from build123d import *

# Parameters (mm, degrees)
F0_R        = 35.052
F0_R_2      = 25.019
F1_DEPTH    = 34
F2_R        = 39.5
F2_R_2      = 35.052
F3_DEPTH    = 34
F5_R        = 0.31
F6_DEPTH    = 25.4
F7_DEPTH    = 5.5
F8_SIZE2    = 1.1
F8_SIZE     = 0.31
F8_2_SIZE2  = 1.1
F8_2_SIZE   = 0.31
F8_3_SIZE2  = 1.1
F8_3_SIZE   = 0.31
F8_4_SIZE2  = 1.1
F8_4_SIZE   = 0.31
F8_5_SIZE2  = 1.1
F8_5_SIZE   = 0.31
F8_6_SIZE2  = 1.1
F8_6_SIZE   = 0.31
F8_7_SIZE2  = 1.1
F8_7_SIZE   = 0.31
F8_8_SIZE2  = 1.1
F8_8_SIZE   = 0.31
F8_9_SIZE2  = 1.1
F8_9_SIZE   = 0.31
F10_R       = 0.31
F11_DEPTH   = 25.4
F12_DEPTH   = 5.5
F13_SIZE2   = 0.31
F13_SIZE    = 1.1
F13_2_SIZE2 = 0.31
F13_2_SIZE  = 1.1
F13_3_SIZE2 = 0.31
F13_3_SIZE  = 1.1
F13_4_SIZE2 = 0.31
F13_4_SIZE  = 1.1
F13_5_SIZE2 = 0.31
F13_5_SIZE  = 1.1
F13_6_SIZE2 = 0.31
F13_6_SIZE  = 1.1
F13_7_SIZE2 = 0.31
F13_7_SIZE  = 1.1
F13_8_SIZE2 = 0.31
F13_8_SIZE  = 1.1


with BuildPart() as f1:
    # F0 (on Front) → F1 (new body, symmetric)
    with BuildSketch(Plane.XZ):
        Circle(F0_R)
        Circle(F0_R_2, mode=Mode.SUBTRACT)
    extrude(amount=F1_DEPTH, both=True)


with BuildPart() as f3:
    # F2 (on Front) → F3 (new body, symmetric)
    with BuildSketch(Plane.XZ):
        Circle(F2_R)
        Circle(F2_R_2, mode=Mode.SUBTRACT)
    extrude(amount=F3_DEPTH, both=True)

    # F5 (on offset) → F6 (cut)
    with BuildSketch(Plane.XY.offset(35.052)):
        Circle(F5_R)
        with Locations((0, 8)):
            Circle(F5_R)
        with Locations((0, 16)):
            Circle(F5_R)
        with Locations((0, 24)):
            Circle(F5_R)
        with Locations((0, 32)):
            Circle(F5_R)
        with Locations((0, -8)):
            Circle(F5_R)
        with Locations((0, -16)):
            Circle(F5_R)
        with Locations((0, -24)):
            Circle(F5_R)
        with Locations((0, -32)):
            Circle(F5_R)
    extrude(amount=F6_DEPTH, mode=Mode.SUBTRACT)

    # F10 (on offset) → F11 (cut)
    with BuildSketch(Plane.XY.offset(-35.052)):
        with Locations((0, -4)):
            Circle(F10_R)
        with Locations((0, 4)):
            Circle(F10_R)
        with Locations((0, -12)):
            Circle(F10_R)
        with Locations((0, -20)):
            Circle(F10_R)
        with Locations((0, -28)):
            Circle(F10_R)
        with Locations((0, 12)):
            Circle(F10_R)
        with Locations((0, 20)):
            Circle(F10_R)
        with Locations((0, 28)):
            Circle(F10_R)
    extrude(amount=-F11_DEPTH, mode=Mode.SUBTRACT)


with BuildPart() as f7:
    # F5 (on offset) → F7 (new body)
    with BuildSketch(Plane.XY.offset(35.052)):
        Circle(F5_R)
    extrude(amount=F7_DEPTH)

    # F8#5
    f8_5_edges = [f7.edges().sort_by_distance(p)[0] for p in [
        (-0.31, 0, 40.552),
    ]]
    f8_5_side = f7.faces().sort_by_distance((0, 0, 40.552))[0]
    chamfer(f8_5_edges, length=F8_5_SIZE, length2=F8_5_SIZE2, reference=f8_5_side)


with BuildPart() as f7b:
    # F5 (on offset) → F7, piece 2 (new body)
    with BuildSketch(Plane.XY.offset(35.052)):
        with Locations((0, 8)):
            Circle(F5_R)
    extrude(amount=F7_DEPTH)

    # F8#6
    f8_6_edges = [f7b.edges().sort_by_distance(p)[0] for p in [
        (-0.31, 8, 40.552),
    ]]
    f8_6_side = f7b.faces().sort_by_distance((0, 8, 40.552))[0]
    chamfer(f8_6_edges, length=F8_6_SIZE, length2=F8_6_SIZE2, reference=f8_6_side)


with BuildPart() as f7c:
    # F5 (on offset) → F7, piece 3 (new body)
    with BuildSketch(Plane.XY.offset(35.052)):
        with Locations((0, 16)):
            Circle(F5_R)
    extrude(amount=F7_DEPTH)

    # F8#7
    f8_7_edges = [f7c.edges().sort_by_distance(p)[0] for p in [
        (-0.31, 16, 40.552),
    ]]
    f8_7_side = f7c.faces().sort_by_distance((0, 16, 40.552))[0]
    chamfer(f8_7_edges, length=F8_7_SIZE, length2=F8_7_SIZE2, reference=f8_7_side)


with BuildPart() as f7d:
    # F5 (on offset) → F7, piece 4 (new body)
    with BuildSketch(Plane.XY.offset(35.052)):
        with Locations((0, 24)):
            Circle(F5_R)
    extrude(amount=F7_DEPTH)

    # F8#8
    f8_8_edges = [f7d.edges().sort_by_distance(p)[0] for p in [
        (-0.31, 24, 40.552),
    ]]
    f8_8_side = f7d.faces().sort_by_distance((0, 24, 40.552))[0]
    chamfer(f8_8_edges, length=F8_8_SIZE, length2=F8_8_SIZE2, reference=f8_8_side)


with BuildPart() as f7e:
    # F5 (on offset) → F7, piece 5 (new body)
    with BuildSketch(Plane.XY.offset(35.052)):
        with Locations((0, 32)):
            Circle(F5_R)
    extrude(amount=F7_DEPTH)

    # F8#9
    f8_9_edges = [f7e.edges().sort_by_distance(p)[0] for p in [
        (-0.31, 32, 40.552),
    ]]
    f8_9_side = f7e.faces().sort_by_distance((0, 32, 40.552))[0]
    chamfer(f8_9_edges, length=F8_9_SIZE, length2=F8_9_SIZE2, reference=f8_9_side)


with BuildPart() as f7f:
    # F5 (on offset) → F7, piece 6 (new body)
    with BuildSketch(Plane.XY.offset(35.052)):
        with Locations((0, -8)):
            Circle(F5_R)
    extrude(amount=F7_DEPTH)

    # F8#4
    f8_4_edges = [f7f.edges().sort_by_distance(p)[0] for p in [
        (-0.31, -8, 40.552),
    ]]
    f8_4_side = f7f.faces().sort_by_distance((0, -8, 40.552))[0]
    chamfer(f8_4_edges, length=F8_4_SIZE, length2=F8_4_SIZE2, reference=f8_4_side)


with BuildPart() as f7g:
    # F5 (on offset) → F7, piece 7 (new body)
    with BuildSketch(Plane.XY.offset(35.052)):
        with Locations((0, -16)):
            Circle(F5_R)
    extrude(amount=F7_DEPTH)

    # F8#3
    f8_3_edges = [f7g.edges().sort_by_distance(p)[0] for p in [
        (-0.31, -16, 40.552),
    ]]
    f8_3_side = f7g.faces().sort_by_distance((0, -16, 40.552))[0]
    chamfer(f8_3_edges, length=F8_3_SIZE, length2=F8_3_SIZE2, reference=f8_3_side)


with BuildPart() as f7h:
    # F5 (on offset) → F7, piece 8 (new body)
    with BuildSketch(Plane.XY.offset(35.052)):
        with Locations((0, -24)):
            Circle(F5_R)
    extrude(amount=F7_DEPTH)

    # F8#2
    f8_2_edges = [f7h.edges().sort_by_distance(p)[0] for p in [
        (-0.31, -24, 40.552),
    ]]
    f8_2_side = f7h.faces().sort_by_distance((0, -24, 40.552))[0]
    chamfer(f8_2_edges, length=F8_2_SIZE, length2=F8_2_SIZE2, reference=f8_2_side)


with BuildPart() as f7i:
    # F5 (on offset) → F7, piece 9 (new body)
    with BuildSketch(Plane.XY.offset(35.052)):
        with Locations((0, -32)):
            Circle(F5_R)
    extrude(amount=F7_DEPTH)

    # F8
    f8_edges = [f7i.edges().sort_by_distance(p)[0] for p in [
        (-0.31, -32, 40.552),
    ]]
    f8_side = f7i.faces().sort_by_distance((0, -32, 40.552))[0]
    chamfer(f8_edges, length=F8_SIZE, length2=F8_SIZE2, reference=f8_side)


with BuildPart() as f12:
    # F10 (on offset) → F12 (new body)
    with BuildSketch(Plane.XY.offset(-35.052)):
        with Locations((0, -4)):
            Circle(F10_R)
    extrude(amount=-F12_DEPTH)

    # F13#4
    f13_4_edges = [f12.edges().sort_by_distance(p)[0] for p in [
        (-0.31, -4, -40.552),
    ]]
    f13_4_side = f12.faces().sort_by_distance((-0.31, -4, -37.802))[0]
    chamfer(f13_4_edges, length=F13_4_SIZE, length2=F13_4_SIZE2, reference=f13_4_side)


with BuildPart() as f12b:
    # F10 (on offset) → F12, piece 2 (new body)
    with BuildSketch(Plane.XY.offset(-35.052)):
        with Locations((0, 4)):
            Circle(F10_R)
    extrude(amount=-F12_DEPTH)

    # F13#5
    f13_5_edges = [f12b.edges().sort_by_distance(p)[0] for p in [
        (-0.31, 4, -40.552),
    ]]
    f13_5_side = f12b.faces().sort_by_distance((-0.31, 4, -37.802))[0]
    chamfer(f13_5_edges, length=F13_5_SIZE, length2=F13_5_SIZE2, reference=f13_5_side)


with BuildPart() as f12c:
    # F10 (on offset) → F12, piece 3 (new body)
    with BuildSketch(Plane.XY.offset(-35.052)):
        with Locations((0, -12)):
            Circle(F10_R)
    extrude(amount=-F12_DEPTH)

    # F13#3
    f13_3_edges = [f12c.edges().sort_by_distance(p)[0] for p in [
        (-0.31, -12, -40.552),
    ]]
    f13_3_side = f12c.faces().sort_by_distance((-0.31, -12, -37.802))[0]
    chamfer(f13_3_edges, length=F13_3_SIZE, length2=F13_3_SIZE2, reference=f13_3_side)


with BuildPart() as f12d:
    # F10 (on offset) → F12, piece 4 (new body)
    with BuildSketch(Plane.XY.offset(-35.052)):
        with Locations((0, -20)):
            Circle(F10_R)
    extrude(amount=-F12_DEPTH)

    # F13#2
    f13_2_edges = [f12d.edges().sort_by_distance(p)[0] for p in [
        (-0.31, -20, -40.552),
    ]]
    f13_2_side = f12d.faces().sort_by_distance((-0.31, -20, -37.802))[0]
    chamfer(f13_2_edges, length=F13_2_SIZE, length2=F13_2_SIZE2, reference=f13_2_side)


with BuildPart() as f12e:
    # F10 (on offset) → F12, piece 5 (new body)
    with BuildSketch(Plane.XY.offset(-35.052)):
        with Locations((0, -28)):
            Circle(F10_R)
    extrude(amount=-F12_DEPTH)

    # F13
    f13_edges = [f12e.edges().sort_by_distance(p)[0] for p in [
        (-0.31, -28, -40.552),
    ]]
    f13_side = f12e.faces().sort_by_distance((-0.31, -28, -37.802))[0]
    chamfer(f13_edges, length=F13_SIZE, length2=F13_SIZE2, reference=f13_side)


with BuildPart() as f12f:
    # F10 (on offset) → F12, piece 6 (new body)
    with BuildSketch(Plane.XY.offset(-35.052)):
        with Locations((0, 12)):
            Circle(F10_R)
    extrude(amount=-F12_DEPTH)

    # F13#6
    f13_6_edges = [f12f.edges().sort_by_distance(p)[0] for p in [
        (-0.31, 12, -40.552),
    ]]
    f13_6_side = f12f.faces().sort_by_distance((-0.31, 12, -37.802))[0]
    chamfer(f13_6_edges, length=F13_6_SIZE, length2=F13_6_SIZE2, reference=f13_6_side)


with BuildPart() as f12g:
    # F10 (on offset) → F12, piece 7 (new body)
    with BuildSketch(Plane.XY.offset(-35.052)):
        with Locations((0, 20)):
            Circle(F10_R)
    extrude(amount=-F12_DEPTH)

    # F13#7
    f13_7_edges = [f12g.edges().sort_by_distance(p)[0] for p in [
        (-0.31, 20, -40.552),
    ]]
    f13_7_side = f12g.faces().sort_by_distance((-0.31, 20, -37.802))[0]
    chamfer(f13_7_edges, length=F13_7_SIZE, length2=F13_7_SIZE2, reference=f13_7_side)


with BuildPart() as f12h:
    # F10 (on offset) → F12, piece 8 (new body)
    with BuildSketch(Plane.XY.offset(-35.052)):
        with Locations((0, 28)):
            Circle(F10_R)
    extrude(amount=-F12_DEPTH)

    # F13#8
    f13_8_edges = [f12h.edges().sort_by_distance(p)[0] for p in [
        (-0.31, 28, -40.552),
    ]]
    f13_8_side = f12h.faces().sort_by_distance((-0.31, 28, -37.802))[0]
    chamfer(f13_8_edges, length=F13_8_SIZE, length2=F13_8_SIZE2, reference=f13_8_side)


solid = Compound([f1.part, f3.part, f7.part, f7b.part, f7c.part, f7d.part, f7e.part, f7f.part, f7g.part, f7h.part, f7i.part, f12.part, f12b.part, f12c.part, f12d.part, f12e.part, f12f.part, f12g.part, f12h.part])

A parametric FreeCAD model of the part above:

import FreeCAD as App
import Part
import Sketcher


def edges_at(feature, points):
    """Names of the edges that pass closest to the given points."""
    edges = feature.Shape.Edges
    near = lambda p: min(range(len(edges)), key=lambda i: edges[i].distToShape(Part.Vertex(*p))[0])
    return sorted({f"Edge{near(p) + 1}" for p in points})

doc = App.newDocument("Part")
body = doc.addObject("PartDesign::Body", "Body")

sketch1 = body.newObject("Sketcher::SketchObject", "Sketch")
sketch1.AttachmentSupport = (doc.getObject("XZ_Plane"), [""])
sketch1.MapMode = "FlatFace"
sketch1.addGeometry(Part.Circle(App.Vector(0, 0, 0), App.Vector(0, 0, 1), 35), False)
sketch1.addGeometry(Part.Circle(App.Vector(0, 0, 0), App.Vector(0, 0, 1), 25), False)
sketch1.addConstraint(Sketcher.Constraint("Coincident", 0, 3, -1, 1))
sketch1.addConstraint(Sketcher.Constraint("Coincident", 1, 3, -1, 1))
sketch1.addConstraint(Sketcher.Constraint("Diameter", 0, 70.104))
sketch1.addConstraint(Sketcher.Constraint("Diameter", 1, 50.038))
pad1 = body.newObject("PartDesign::Pad", "Pad")
pad1.Profile = sketch1
pad1.Length = 68
pad1.Midplane = True
body2 = doc.addObject("PartDesign::Body", "Body001")

sketch2 = body2.newObject("Sketcher::SketchObject", "Sketch001")
sketch2.AttachmentSupport = (doc.getObject("XZ_Plane001"), [""])
sketch2.MapMode = "FlatFace"
sketch2.addGeometry(Part.Circle(App.Vector(0, 0, 0), App.Vector(0, 0, 1), 40), False)
sketch2.addGeometry(Part.Circle(App.Vector(0, 0, 0), App.Vector(0, 0, 1), 35), False)
sketch2.addConstraint(Sketcher.Constraint("Coincident", 0, 3, -1, 1))
sketch2.addConstraint(Sketcher.Constraint("Coincident", 1, 3, -1, 1))
sketch2.addConstraint(Sketcher.Constraint("Diameter", 0, 79.0))
sketch2.addConstraint(Sketcher.Constraint("Diameter", 1, 70.104))
pad2 = body2.newObject("PartDesign::Pad", "Pad001")
pad2.Profile = sketch2
pad2.Length = 68
pad2.Midplane = True

sketch3 = body2.newObject("Sketcher::SketchObject", "Sketch002")
sketch3.AttachmentSupport = (doc.getObject("XY_Plane001"), [""])
sketch3.MapMode = "FlatFace"
sketch3.AttachmentOffset = App.Placement(App.Vector(0, 0, 35.052), App.Rotation())
sketch3.addGeometry(Part.Circle(App.Vector(0, 0, 0), App.Vector(0, 0, 1), 0.31), False)
sketch3.addGeometry(Part.Circle(App.Vector(0, 8, 0), App.Vector(0, 0, 1), 0.31), False)
sketch3.addGeometry(Part.Circle(App.Vector(0, 16, 0), App.Vector(0, 0, 1), 0.31), False)
sketch3.addGeometry(Part.Circle(App.Vector(0, 24, 0), App.Vector(0, 0, 1), 0.31), False)
sketch3.addGeometry(Part.Circle(App.Vector(0, 32, 0), App.Vector(0, 0, 1), 0.31), False)
sketch3.addGeometry(Part.Circle(App.Vector(0, -8, 0), App.Vector(0, 0, 1), 0.31), False)
sketch3.addGeometry(Part.Circle(App.Vector(0, -16, 0), App.Vector(0, 0, 1), 0.31), False)
sketch3.addGeometry(Part.Circle(App.Vector(0, -24, 0), App.Vector(0, 0, 1), 0.31), False)
sketch3.addGeometry(Part.Circle(App.Vector(0, -32, 0), App.Vector(0, 0, 1), 0.31), False)
sketch3.addConstraint(Sketcher.Constraint("Coincident", 0, 3, -1, 1))
sketch3.addConstraint(Sketcher.Constraint("Equal", 0, 1))
sketch3.addConstraint(Sketcher.Constraint("Equal", 1, 2))
sketch3.addConstraint(Sketcher.Constraint("Equal", 2, 3))
sketch3.addConstraint(Sketcher.Constraint("Equal", 3, 4))
sketch3.addConstraint(Sketcher.Constraint("Equal", 4, 5))
sketch3.addConstraint(Sketcher.Constraint("Equal", 5, 6))
sketch3.addConstraint(Sketcher.Constraint("Equal", 6, 7))
sketch3.addConstraint(Sketcher.Constraint("Equal", 7, 8))
sketch3.addConstraint(Sketcher.Constraint("Symmetric", 1, 3, 5, 3, -1, 1))
sketch3.addConstraint(Sketcher.Constraint("Symmetric", 2, 3, 6, 3, -1, 1))
sketch3.addConstraint(Sketcher.Constraint("Symmetric", 3, 3, 7, 3, -1, 1))
sketch3.addConstraint(Sketcher.Constraint("Symmetric", 4, 3, 8, 3, -1, 1))
sketch3.addConstraint(Sketcher.Constraint("PointOnObject", 1, 3, -2))
sketch3.addConstraint(Sketcher.Constraint("PointOnObject", 2, 3, -2))
sketch3.addConstraint(Sketcher.Constraint("PointOnObject", 3, 3, -2))
sketch3.addConstraint(Sketcher.Constraint("PointOnObject", 4, 3, -2))
sketch3.addConstraint(Sketcher.Constraint("Diameter", 0, 0.62))
sketch3.addConstraint(Sketcher.Constraint("DistanceY", -1, 1, 1, 3, 8.0))
sketch3.addConstraint(Sketcher.Constraint("DistanceY", -1, 1, 2, 3, 16.0))
sketch3.addConstraint(Sketcher.Constraint("DistanceY", -1, 1, 3, 3, 24.0))
sketch3.addConstraint(Sketcher.Constraint("DistanceY", -1, 1, 4, 3, 32.0))
pocket1 = body2.newObject("PartDesign::Pocket", "Pocket")
pocket1.Profile = sketch3
pocket1.Length = 25.4
pocket1.Reversed = True

sketch4 = body2.newObject("Sketcher::SketchObject", "Sketch003")
sketch4.AttachmentSupport = (doc.getObject("XY_Plane001"), [""])
sketch4.MapMode = "FlatFace"
sketch4.AttachmentOffset = App.Placement(App.Vector(0, 0, -35.052), App.Rotation())
sketch4.addGeometry(Part.Circle(App.Vector(0, -4, 0), App.Vector(0, 0, 1), 0.31), False)
sketch4.addGeometry(Part.Circle(App.Vector(0, 4, 0), App.Vector(0, 0, 1), 0.31), False)
sketch4.addGeometry(Part.Circle(App.Vector(0, -12, 0), App.Vector(0, 0, 1), 0.31), False)
sketch4.addGeometry(Part.Circle(App.Vector(0, -20, 0), App.Vector(0, 0, 1), 0.31), False)
sketch4.addGeometry(Part.Circle(App.Vector(0, -28, 0), App.Vector(0, 0, 1), 0.31), False)
sketch4.addGeometry(Part.Circle(App.Vector(0, 12, 0), App.Vector(0, 0, 1), 0.31), False)
sketch4.addGeometry(Part.Circle(App.Vector(0, 20, 0), App.Vector(0, 0, 1), 0.31), False)
sketch4.addGeometry(Part.Circle(App.Vector(0, 28, 0), App.Vector(0, 0, 1), 0.31), False)
sketch4.addConstraint(Sketcher.Constraint("Equal", 0, 1))
sketch4.addConstraint(Sketcher.Constraint("Equal", 1, 2))
sketch4.addConstraint(Sketcher.Constraint("Equal", 2, 3))
sketch4.addConstraint(Sketcher.Constraint("Equal", 3, 4))
sketch4.addConstraint(Sketcher.Constraint("Equal", 4, 5))
sketch4.addConstraint(Sketcher.Constraint("Equal", 5, 6))
sketch4.addConstraint(Sketcher.Constraint("Equal", 6, 7))
sketch4.addConstraint(Sketcher.Constraint("Symmetric", 0, 3, 1, 3, -1, 1))
sketch4.addConstraint(Sketcher.Constraint("Symmetric", 2, 3, 5, 3, -1, 1))
sketch4.addConstraint(Sketcher.Constraint("Symmetric", 3, 3, 6, 3, -1, 1))
sketch4.addConstraint(Sketcher.Constraint("Symmetric", 4, 3, 7, 3, -1, 1))
sketch4.addConstraint(Sketcher.Constraint("PointOnObject", 0, 3, -2))
sketch4.addConstraint(Sketcher.Constraint("PointOnObject", 2, 3, -2))
sketch4.addConstraint(Sketcher.Constraint("PointOnObject", 3, 3, -2))
sketch4.addConstraint(Sketcher.Constraint("PointOnObject", 4, 3, -2))
sketch4.addConstraint(Sketcher.Constraint("Diameter", 0, 0.62))
sketch4.addConstraint(Sketcher.Constraint("DistanceY", 0, 3, -1, 1, 4.0))
sketch4.addConstraint(Sketcher.Constraint("DistanceY", 2, 3, -1, 1, 12.0))
sketch4.addConstraint(Sketcher.Constraint("DistanceY", 3, 3, -1, 1, 20.0))
sketch4.addConstraint(Sketcher.Constraint("DistanceY", 4, 3, -1, 1, 28.0))
pocket2 = body2.newObject("PartDesign::Pocket", "Pocket001")
pocket2.Profile = sketch4
pocket2.Length = 25.4
body3 = doc.addObject("PartDesign::Body", "Body002")

sketch5 = body3.newObject("Sketcher::SketchObject", "Sketch004")
sketch5.AttachmentSupport = (doc.getObject("XY_Plane002"), [""])
sketch5.MapMode = "FlatFace"
sketch5.AttachmentOffset = App.Placement(App.Vector(0, 0, 35.052), App.Rotation())
sketch5.addGeometry(Part.Circle(App.Vector(0, 0, 0), App.Vector(0, 0, 1), 0.31), False)
sketch5.addConstraint(Sketcher.Constraint("Coincident", 0, 3, -1, 1))
sketch5.addConstraint(Sketcher.Constraint("Diameter", 0, 0.62))
pad3 = body3.newObject("PartDesign::Pad", "Pad002")
pad3.Profile = sketch5
pad3.Length = 5.5
doc.recompute()

chamfer = body3.newObject("PartDesign::Chamfer", "Chamfer")
chamfer.Base = (pad3, edges_at(pad3, [(-0.31, 0, 40.552)]))
chamfer.ChamferType = "Two distances"
chamfer.Size = 0.31
chamfer.Size2 = 1.1
chamfer.FlipDirection = True
body4 = doc.addObject("PartDesign::Body", "Body003")

sketch6 = body4.newObject("Sketcher::SketchObject", "Sketch005")
sketch6.AttachmentSupport = (doc.getObject("XY_Plane003"), [""])
sketch6.MapMode = "FlatFace"
sketch6.AttachmentOffset = App.Placement(App.Vector(0, 0, 35.052), App.Rotation())
sketch6.addGeometry(Part.Circle(App.Vector(0, 8, 0), App.Vector(0, 0, 1), 0.31), False)
sketch6.addConstraint(Sketcher.Constraint("PointOnObject", 0, 3, -2))
sketch6.addConstraint(Sketcher.Constraint("Diameter", 0, 0.62))
sketch6.addConstraint(Sketcher.Constraint("DistanceY", -1, 1, 0, 3, 8.0))
pad4 = body4.newObject("PartDesign::Pad", "Pad003")
pad4.Profile = sketch6
pad4.Length = 5.5
doc.recompute()

chamfer2 = body4.newObject("PartDesign::Chamfer", "Chamfer001")
chamfer2.Base = (pad4, edges_at(pad4, [(-0.31, 8, 40.552)]))
chamfer2.ChamferType = "Two distances"
chamfer2.Size = 0.31
chamfer2.Size2 = 1.1
chamfer2.FlipDirection = True
body5 = doc.addObject("PartDesign::Body", "Body004")

sketch7 = body5.newObject("Sketcher::SketchObject", "Sketch006")
sketch7.AttachmentSupport = (doc.getObject("XY_Plane004"), [""])
sketch7.MapMode = "FlatFace"
sketch7.AttachmentOffset = App.Placement(App.Vector(0, 0, 35.052), App.Rotation())
sketch7.addGeometry(Part.Circle(App.Vector(0, 16, 0), App.Vector(0, 0, 1), 0.31), False)
sketch7.addConstraint(Sketcher.Constraint("PointOnObject", 0, 3, -2))
sketch7.addConstraint(Sketcher.Constraint("Diameter", 0, 0.62))
sketch7.addConstraint(Sketcher.Constraint("DistanceY", -1, 1, 0, 3, 16.0))
pad5 = body5.newObject("PartDesign::Pad", "Pad004")
pad5.Profile = sketch7
pad5.Length = 5.5
doc.recompute()

chamfer3 = body5.newObject("PartDesign::Chamfer", "Chamfer002")
chamfer3.Base = (pad5, edges_at(pad5, [(-0.31, 16, 40.552)]))
chamfer3.ChamferType = "Two distances"
chamfer3.Size = 0.31
chamfer3.Size2 = 1.1
chamfer3.FlipDirection = True
body6 = doc.addObject("PartDesign::Body", "Body005")

sketch8 = body6.newObject("Sketcher::SketchObject", "Sketch007")
sketch8.AttachmentSupport = (doc.getObject("XY_Plane005"), [""])
sketch8.MapMode = "FlatFace"
sketch8.AttachmentOffset = App.Placement(App.Vector(0, 0, 35.052), App.Rotation())
sketch8.addGeometry(Part.Circle(App.Vector(0, 24, 0), App.Vector(0, 0, 1), 0.31), False)
sketch8.addConstraint(Sketcher.Constraint("PointOnObject", 0, 3, -2))
sketch8.addConstraint(Sketcher.Constraint("Diameter", 0, 0.62))
sketch8.addConstraint(Sketcher.Constraint("DistanceY", -1, 1, 0, 3, 24.0))
pad6 = body6.newObject("PartDesign::Pad", "Pad005")
pad6.Profile = sketch8
pad6.Length = 5.5
doc.recompute()

chamfer4 = body6.newObject("PartDesign::Chamfer", "Chamfer003")
chamfer4.Base = (pad6, edges_at(pad6, [(-0.31, 24, 40.552)]))
chamfer4.ChamferType = "Two distances"
chamfer4.Size = 0.31
chamfer4.Size2 = 1.1
chamfer4.FlipDirection = True
body7 = doc.addObject("PartDesign::Body", "Body006")

sketch9 = body7.newObject("Sketcher::SketchObject", "Sketch008")
sketch9.AttachmentSupport = (doc.getObject("XY_Plane006"), [""])
sketch9.MapMode = "FlatFace"
sketch9.AttachmentOffset = App.Placement(App.Vector(0, 0, 35.052), App.Rotation())
sketch9.addGeometry(Part.Circle(App.Vector(0, 32, 0), App.Vector(0, 0, 1), 0.31), False)
sketch9.addConstraint(Sketcher.Constraint("PointOnObject", 0, 3, -2))
sketch9.addConstraint(Sketcher.Constraint("Diameter", 0, 0.62))
sketch9.addConstraint(Sketcher.Constraint("DistanceY", -1, 1, 0, 3, 32.0))
pad7 = body7.newObject("PartDesign::Pad", "Pad006")
pad7.Profile = sketch9
pad7.Length = 5.5
doc.recompute()

chamfer5 = body7.newObject("PartDesign::Chamfer", "Chamfer004")
chamfer5.Base = (pad7, edges_at(pad7, [(-0.31, 32, 40.552)]))
chamfer5.ChamferType = "Two distances"
chamfer5.Size = 0.31
chamfer5.Size2 = 1.1
chamfer5.FlipDirection = True
body8 = doc.addObject("PartDesign::Body", "Body007")

sketch10 = body8.newObject("Sketcher::SketchObject", "Sketch009")
sketch10.AttachmentSupport = (doc.getObject("XY_Plane007"), [""])
sketch10.MapMode = "FlatFace"
sketch10.AttachmentOffset = App.Placement(App.Vector(0, 0, 35.052), App.Rotation())
sketch10.addGeometry(Part.Circle(App.Vector(0, -8, 0), App.Vector(0, 0, 1), 0.31), False)
sketch10.addConstraint(Sketcher.Constraint("PointOnObject", 0, 3, -2))
sketch10.addConstraint(Sketcher.Constraint("Diameter", 0, 0.62))
sketch10.addConstraint(Sketcher.Constraint("DistanceY", 0, 3, -1, 1, 8.0))
pad8 = body8.newObject("PartDesign::Pad", "Pad007")
pad8.Profile = sketch10
pad8.Length = 5.5
doc.recompute()

chamfer6 = body8.newObject("PartDesign::Chamfer", "Chamfer005")
chamfer6.Base = (pad8, edges_at(pad8, [(-0.31, -8, 40.552)]))
chamfer6.ChamferType = "Two distances"
chamfer6.Size = 0.31
chamfer6.Size2 = 1.1
chamfer6.FlipDirection = True
body9 = doc.addObject("PartDesign::Body", "Body008")

sketch11 = body9.newObject("Sketcher::SketchObject", "Sketch010")
sketch11.AttachmentSupport = (doc.getObject("XY_Plane008"), [""])
sketch11.MapMode = "FlatFace"
sketch11.AttachmentOffset = App.Placement(App.Vector(0, 0, 35.052), App.Rotation())
sketch11.addGeometry(Part.Circle(App.Vector(0, -16, 0), App.Vector(0, 0, 1), 0.31), False)
sketch11.addConstraint(Sketcher.Constraint("PointOnObject", 0, 3, -2))
sketch11.addConstraint(Sketcher.Constraint("Diameter", 0, 0.62))
sketch11.addConstraint(Sketcher.Constraint("DistanceY", 0, 3, -1, 1, 16.0))
pad9 = body9.newObject("PartDesign::Pad", "Pad008")
pad9.Profile = sketch11
pad9.Length = 5.5
doc.recompute()

chamfer7 = body9.newObject("PartDesign::Chamfer", "Chamfer006")
chamfer7.Base = (pad9, edges_at(pad9, [(-0.31, -16, 40.552)]))
chamfer7.ChamferType = "Two distances"
chamfer7.Size = 0.31
chamfer7.Size2 = 1.1
chamfer7.FlipDirection = True
body10 = doc.addObject("PartDesign::Body", "Body009")

sketch12 = body10.newObject("Sketcher::SketchObject", "Sketch011")
sketch12.AttachmentSupport = (doc.getObject("XY_Plane009"), [""])
sketch12.MapMode = "FlatFace"
sketch12.AttachmentOffset = App.Placement(App.Vector(0, 0, 35.052), App.Rotation())
sketch12.addGeometry(Part.Circle(App.Vector(0, -24, 0), App.Vector(0, 0, 1), 0.31), False)
sketch12.addConstraint(Sketcher.Constraint("PointOnObject", 0, 3, -2))
sketch12.addConstraint(Sketcher.Constraint("Diameter", 0, 0.62))
sketch12.addConstraint(Sketcher.Constraint("DistanceY", 0, 3, -1, 1, 24.0))
pad10 = body10.newObject("PartDesign::Pad", "Pad009")
pad10.Profile = sketch12
pad10.Length = 5.5
doc.recompute()

chamfer8 = body10.newObject("PartDesign::Chamfer", "Chamfer007")
chamfer8.Base = (pad10, edges_at(pad10, [(-0.31, -24, 40.552)]))
chamfer8.ChamferType = "Two distances"
chamfer8.Size = 0.31
chamfer8.Size2 = 1.1
chamfer8.FlipDirection = True
body11 = doc.addObject("PartDesign::Body", "Body010")

sketch13 = body11.newObject("Sketcher::SketchObject", "Sketch012")
sketch13.AttachmentSupport = (doc.getObject("XY_Plane010"), [""])
sketch13.MapMode = "FlatFace"
sketch13.AttachmentOffset = App.Placement(App.Vector(0, 0, 35.052), App.Rotation())
sketch13.addGeometry(Part.Circle(App.Vector(0, -32, 0), App.Vector(0, 0, 1), 0.31), False)
sketch13.addConstraint(Sketcher.Constraint("PointOnObject", 0, 3, -2))
sketch13.addConstraint(Sketcher.Constraint("Diameter", 0, 0.62))
sketch13.addConstraint(Sketcher.Constraint("DistanceY", 0, 3, -1, 1, 32.0))
pad11 = body11.newObject("PartDesign::Pad", "Pad010")
pad11.Profile = sketch13
pad11.Length = 5.5
doc.recompute()

chamfer9 = body11.newObject("PartDesign::Chamfer", "Chamfer008")
chamfer9.Base = (pad11, edges_at(pad11, [(-0.31, -32, 40.552)]))
chamfer9.ChamferType = "Two distances"
chamfer9.Size = 0.31
chamfer9.Size2 = 1.1
chamfer9.FlipDirection = True
body12 = doc.addObject("PartDesign::Body", "Body011")

sketch14 = body12.newObject("Sketcher::SketchObject", "Sketch013")
sketch14.AttachmentSupport = (doc.getObject("XY_Plane011"), [""])
sketch14.MapMode = "FlatFace"
sketch14.AttachmentOffset = App.Placement(App.Vector(0, 0, -35.052), App.Rotation())
sketch14.addGeometry(Part.Circle(App.Vector(0, -4, 0), App.Vector(0, 0, 1), 0.31), False)
sketch14.addConstraint(Sketcher.Constraint("PointOnObject", 0, 3, -2))
sketch14.addConstraint(Sketcher.Constraint("Diameter", 0, 0.62))
sketch14.addConstraint(Sketcher.Constraint("DistanceY", 0, 3, -1, 1, 4.0))
pad12 = body12.newObject("PartDesign::Pad", "Pad011")
pad12.Profile = sketch14
pad12.Length = 5.5
pad12.Reversed = True
doc.recompute()

chamfer10 = body12.newObject("PartDesign::Chamfer", "Chamfer009")
chamfer10.Base = (pad12, edges_at(pad12, [(-0.31, -4, -40.552)]))
chamfer10.ChamferType = "Two distances"
chamfer10.Size = 1.1
chamfer10.Size2 = 0.31
body13 = doc.addObject("PartDesign::Body", "Body012")

sketch15 = body13.newObject("Sketcher::SketchObject", "Sketch014")
sketch15.AttachmentSupport = (doc.getObject("XY_Plane012"), [""])
sketch15.MapMode = "FlatFace"
sketch15.AttachmentOffset = App.Placement(App.Vector(0, 0, -35.052), App.Rotation())
sketch15.addGeometry(Part.Circle(App.Vector(0, 4, 0), App.Vector(0, 0, 1), 0.31), False)
sketch15.addConstraint(Sketcher.Constraint("PointOnObject", 0, 3, -2))
sketch15.addConstraint(Sketcher.Constraint("Diameter", 0, 0.62))
sketch15.addConstraint(Sketcher.Constraint("DistanceY", -1, 1, 0, 3, 4.0))
pad13 = body13.newObject("PartDesign::Pad", "Pad012")
pad13.Profile = sketch15
pad13.Length = 5.5
pad13.Reversed = True
doc.recompute()

chamfer11 = body13.newObject("PartDesign::Chamfer", "Chamfer010")
chamfer11.Base = (pad13, edges_at(pad13, [(-0.31, 4, -40.552)]))
chamfer11.ChamferType = "Two distances"
chamfer11.Size = 1.1
chamfer11.Size2 = 0.31
body14 = doc.addObject("PartDesign::Body", "Body013")

sketch16 = body14.newObject("Sketcher::SketchObject", "Sketch015")
sketch16.AttachmentSupport = (doc.getObject("XY_Plane013"), [""])
sketch16.MapMode = "FlatFace"
sketch16.AttachmentOffset = App.Placement(App.Vector(0, 0, -35.052), App.Rotation())
sketch16.addGeometry(Part.Circle(App.Vector(0, -12, 0), App.Vector(0, 0, 1), 0.31), False)
sketch16.addConstraint(Sketcher.Constraint("PointOnObject", 0, 3, -2))
sketch16.addConstraint(Sketcher.Constraint("Diameter", 0, 0.62))
sketch16.addConstraint(Sketcher.Constraint("DistanceY", 0, 3, -1, 1, 12.0))
pad14 = body14.newObject("PartDesign::Pad", "Pad013")
pad14.Profile = sketch16
pad14.Length = 5.5
pad14.Reversed = True
doc.recompute()

chamfer12 = body14.newObject("PartDesign::Chamfer", "Chamfer011")
chamfer12.Base = (pad14, edges_at(pad14, [(-0.31, -12, -40.552)]))
chamfer12.ChamferType = "Two distances"
chamfer12.Size = 1.1
chamfer12.Size2 = 0.31
body15 = doc.addObject("PartDesign::Body", "Body014")

sketch17 = body15.newObject("Sketcher::SketchObject", "Sketch016")
sketch17.AttachmentSupport = (doc.getObject("XY_Plane014"), [""])
sketch17.MapMode = "FlatFace"
sketch17.AttachmentOffset = App.Placement(App.Vector(0, 0, -35.052), App.Rotation())
sketch17.addGeometry(Part.Circle(App.Vector(0, -20, 0), App.Vector(0, 0, 1), 0.31), False)
sketch17.addConstraint(Sketcher.Constraint("PointOnObject", 0, 3, -2))
sketch17.addConstraint(Sketcher.Constraint("Diameter", 0, 0.62))
sketch17.addConstraint(Sketcher.Constraint("DistanceY", 0, 3, -1, 1, 20.0))
pad15 = body15.newObject("PartDesign::Pad", "Pad014")
pad15.Profile = sketch17
pad15.Length = 5.5
pad15.Reversed = True
doc.recompute()

chamfer13 = body15.newObject("PartDesign::Chamfer", "Chamfer012")
chamfer13.Base = (pad15, edges_at(pad15, [(-0.31, -20, -40.552)]))
chamfer13.ChamferType = "Two distances"
chamfer13.Size = 1.1
chamfer13.Size2 = 0.31
body16 = doc.addObject("PartDesign::Body", "Body015")

sketch18 = body16.newObject("Sketcher::SketchObject", "Sketch017")
sketch18.AttachmentSupport = (doc.getObject("XY_Plane015"), [""])
sketch18.MapMode = "FlatFace"
sketch18.AttachmentOffset = App.Placement(App.Vector(0, 0, -35.052), App.Rotation())
sketch18.addGeometry(Part.Circle(App.Vector(0, -28, 0), App.Vector(0, 0, 1), 0.31), False)
sketch18.addConstraint(Sketcher.Constraint("PointOnObject", 0, 3, -2))
sketch18.addConstraint(Sketcher.Constraint("Diameter", 0, 0.62))
sketch18.addConstraint(Sketcher.Constraint("DistanceY", 0, 3, -1, 1, 28.0))
pad16 = body16.newObject("PartDesign::Pad", "Pad015")
pad16.Profile = sketch18
pad16.Length = 5.5
pad16.Reversed = True
doc.recompute()

chamfer14 = body16.newObject("PartDesign::Chamfer", "Chamfer013")
chamfer14.Base = (pad16, edges_at(pad16, [(-0.31, -28, -40.552)]))
chamfer14.ChamferType = "Two distances"
chamfer14.Size = 1.1
chamfer14.Size2 = 0.31
body17 = doc.addObject("PartDesign::Body", "Body016")

sketch19 = body17.newObject("Sketcher::SketchObject", "Sketch018")
sketch19.AttachmentSupport = (doc.getObject("XY_Plane016"), [""])
sketch19.MapMode = "FlatFace"
sketch19.AttachmentOffset = App.Placement(App.Vector(0, 0, -35.052), App.Rotation())
sketch19.addGeometry(Part.Circle(App.Vector(0, 12, 0), App.Vector(0, 0, 1), 0.31), False)
sketch19.addConstraint(Sketcher.Constraint("PointOnObject", 0, 3, -2))
sketch19.addConstraint(Sketcher.Constraint("Diameter", 0, 0.62))
sketch19.addConstraint(Sketcher.Constraint("DistanceY", -1, 1, 0, 3, 12.0))
pad17 = body17.newObject("PartDesign::Pad", "Pad016")
pad17.Profile = sketch19
pad17.Length = 5.5
pad17.Reversed = True
doc.recompute()

chamfer15 = body17.newObject("PartDesign::Chamfer", "Chamfer014")
chamfer15.Base = (pad17, edges_at(pad17, [(-0.31, 12, -40.552)]))
chamfer15.ChamferType = "Two distances"
chamfer15.Size = 1.1
chamfer15.Size2 = 0.31
body18 = doc.addObject("PartDesign::Body", "Body017")

sketch20 = body18.newObject("Sketcher::SketchObject", "Sketch019")
sketch20.AttachmentSupport = (doc.getObject("XY_Plane017"), [""])
sketch20.MapMode = "FlatFace"
sketch20.AttachmentOffset = App.Placement(App.Vector(0, 0, -35.052), App.Rotation())
sketch20.addGeometry(Part.Circle(App.Vector(0, 20, 0), App.Vector(0, 0, 1), 0.31), False)
sketch20.addConstraint(Sketcher.Constraint("PointOnObject", 0, 3, -2))
sketch20.addConstraint(Sketcher.Constraint("Diameter", 0, 0.62))
sketch20.addConstraint(Sketcher.Constraint("DistanceY", -1, 1, 0, 3, 20.0))
pad18 = body18.newObject("PartDesign::Pad", "Pad017")
pad18.Profile = sketch20
pad18.Length = 5.5
pad18.Reversed = True
doc.recompute()

chamfer16 = body18.newObject("PartDesign::Chamfer", "Chamfer015")
chamfer16.Base = (pad18, edges_at(pad18, [(-0.31, 20, -40.552)]))
chamfer16.ChamferType = "Two distances"
chamfer16.Size = 1.1
chamfer16.Size2 = 0.31
body19 = doc.addObject("PartDesign::Body", "Body018")

sketch21 = body19.newObject("Sketcher::SketchObject", "Sketch020")
sketch21.AttachmentSupport = (doc.getObject("XY_Plane018"), [""])
sketch21.MapMode = "FlatFace"
sketch21.AttachmentOffset = App.Placement(App.Vector(0, 0, -35.052), App.Rotation())
sketch21.addGeometry(Part.Circle(App.Vector(0, 28, 0), App.Vector(0, 0, 1), 0.31), False)
sketch21.addConstraint(Sketcher.Constraint("PointOnObject", 0, 3, -2))
sketch21.addConstraint(Sketcher.Constraint("Diameter", 0, 0.62))
sketch21.addConstraint(Sketcher.Constraint("DistanceY", -1, 1, 0, 3, 28.0))
pad19 = body19.newObject("PartDesign::Pad", "Pad018")
pad19.Profile = sketch21
pad19.Length = 5.5
pad19.Reversed = True
doc.recompute()

chamfer17 = body19.newObject("PartDesign::Chamfer", "Chamfer016")
chamfer17.Base = (pad19, edges_at(pad19, [(-0.31, 28, -40.552)]))
chamfer17.ChamferType = "Two distances"
chamfer17.Size = 1.1
chamfer17.Size2 = 0.31

doc.recompute()
